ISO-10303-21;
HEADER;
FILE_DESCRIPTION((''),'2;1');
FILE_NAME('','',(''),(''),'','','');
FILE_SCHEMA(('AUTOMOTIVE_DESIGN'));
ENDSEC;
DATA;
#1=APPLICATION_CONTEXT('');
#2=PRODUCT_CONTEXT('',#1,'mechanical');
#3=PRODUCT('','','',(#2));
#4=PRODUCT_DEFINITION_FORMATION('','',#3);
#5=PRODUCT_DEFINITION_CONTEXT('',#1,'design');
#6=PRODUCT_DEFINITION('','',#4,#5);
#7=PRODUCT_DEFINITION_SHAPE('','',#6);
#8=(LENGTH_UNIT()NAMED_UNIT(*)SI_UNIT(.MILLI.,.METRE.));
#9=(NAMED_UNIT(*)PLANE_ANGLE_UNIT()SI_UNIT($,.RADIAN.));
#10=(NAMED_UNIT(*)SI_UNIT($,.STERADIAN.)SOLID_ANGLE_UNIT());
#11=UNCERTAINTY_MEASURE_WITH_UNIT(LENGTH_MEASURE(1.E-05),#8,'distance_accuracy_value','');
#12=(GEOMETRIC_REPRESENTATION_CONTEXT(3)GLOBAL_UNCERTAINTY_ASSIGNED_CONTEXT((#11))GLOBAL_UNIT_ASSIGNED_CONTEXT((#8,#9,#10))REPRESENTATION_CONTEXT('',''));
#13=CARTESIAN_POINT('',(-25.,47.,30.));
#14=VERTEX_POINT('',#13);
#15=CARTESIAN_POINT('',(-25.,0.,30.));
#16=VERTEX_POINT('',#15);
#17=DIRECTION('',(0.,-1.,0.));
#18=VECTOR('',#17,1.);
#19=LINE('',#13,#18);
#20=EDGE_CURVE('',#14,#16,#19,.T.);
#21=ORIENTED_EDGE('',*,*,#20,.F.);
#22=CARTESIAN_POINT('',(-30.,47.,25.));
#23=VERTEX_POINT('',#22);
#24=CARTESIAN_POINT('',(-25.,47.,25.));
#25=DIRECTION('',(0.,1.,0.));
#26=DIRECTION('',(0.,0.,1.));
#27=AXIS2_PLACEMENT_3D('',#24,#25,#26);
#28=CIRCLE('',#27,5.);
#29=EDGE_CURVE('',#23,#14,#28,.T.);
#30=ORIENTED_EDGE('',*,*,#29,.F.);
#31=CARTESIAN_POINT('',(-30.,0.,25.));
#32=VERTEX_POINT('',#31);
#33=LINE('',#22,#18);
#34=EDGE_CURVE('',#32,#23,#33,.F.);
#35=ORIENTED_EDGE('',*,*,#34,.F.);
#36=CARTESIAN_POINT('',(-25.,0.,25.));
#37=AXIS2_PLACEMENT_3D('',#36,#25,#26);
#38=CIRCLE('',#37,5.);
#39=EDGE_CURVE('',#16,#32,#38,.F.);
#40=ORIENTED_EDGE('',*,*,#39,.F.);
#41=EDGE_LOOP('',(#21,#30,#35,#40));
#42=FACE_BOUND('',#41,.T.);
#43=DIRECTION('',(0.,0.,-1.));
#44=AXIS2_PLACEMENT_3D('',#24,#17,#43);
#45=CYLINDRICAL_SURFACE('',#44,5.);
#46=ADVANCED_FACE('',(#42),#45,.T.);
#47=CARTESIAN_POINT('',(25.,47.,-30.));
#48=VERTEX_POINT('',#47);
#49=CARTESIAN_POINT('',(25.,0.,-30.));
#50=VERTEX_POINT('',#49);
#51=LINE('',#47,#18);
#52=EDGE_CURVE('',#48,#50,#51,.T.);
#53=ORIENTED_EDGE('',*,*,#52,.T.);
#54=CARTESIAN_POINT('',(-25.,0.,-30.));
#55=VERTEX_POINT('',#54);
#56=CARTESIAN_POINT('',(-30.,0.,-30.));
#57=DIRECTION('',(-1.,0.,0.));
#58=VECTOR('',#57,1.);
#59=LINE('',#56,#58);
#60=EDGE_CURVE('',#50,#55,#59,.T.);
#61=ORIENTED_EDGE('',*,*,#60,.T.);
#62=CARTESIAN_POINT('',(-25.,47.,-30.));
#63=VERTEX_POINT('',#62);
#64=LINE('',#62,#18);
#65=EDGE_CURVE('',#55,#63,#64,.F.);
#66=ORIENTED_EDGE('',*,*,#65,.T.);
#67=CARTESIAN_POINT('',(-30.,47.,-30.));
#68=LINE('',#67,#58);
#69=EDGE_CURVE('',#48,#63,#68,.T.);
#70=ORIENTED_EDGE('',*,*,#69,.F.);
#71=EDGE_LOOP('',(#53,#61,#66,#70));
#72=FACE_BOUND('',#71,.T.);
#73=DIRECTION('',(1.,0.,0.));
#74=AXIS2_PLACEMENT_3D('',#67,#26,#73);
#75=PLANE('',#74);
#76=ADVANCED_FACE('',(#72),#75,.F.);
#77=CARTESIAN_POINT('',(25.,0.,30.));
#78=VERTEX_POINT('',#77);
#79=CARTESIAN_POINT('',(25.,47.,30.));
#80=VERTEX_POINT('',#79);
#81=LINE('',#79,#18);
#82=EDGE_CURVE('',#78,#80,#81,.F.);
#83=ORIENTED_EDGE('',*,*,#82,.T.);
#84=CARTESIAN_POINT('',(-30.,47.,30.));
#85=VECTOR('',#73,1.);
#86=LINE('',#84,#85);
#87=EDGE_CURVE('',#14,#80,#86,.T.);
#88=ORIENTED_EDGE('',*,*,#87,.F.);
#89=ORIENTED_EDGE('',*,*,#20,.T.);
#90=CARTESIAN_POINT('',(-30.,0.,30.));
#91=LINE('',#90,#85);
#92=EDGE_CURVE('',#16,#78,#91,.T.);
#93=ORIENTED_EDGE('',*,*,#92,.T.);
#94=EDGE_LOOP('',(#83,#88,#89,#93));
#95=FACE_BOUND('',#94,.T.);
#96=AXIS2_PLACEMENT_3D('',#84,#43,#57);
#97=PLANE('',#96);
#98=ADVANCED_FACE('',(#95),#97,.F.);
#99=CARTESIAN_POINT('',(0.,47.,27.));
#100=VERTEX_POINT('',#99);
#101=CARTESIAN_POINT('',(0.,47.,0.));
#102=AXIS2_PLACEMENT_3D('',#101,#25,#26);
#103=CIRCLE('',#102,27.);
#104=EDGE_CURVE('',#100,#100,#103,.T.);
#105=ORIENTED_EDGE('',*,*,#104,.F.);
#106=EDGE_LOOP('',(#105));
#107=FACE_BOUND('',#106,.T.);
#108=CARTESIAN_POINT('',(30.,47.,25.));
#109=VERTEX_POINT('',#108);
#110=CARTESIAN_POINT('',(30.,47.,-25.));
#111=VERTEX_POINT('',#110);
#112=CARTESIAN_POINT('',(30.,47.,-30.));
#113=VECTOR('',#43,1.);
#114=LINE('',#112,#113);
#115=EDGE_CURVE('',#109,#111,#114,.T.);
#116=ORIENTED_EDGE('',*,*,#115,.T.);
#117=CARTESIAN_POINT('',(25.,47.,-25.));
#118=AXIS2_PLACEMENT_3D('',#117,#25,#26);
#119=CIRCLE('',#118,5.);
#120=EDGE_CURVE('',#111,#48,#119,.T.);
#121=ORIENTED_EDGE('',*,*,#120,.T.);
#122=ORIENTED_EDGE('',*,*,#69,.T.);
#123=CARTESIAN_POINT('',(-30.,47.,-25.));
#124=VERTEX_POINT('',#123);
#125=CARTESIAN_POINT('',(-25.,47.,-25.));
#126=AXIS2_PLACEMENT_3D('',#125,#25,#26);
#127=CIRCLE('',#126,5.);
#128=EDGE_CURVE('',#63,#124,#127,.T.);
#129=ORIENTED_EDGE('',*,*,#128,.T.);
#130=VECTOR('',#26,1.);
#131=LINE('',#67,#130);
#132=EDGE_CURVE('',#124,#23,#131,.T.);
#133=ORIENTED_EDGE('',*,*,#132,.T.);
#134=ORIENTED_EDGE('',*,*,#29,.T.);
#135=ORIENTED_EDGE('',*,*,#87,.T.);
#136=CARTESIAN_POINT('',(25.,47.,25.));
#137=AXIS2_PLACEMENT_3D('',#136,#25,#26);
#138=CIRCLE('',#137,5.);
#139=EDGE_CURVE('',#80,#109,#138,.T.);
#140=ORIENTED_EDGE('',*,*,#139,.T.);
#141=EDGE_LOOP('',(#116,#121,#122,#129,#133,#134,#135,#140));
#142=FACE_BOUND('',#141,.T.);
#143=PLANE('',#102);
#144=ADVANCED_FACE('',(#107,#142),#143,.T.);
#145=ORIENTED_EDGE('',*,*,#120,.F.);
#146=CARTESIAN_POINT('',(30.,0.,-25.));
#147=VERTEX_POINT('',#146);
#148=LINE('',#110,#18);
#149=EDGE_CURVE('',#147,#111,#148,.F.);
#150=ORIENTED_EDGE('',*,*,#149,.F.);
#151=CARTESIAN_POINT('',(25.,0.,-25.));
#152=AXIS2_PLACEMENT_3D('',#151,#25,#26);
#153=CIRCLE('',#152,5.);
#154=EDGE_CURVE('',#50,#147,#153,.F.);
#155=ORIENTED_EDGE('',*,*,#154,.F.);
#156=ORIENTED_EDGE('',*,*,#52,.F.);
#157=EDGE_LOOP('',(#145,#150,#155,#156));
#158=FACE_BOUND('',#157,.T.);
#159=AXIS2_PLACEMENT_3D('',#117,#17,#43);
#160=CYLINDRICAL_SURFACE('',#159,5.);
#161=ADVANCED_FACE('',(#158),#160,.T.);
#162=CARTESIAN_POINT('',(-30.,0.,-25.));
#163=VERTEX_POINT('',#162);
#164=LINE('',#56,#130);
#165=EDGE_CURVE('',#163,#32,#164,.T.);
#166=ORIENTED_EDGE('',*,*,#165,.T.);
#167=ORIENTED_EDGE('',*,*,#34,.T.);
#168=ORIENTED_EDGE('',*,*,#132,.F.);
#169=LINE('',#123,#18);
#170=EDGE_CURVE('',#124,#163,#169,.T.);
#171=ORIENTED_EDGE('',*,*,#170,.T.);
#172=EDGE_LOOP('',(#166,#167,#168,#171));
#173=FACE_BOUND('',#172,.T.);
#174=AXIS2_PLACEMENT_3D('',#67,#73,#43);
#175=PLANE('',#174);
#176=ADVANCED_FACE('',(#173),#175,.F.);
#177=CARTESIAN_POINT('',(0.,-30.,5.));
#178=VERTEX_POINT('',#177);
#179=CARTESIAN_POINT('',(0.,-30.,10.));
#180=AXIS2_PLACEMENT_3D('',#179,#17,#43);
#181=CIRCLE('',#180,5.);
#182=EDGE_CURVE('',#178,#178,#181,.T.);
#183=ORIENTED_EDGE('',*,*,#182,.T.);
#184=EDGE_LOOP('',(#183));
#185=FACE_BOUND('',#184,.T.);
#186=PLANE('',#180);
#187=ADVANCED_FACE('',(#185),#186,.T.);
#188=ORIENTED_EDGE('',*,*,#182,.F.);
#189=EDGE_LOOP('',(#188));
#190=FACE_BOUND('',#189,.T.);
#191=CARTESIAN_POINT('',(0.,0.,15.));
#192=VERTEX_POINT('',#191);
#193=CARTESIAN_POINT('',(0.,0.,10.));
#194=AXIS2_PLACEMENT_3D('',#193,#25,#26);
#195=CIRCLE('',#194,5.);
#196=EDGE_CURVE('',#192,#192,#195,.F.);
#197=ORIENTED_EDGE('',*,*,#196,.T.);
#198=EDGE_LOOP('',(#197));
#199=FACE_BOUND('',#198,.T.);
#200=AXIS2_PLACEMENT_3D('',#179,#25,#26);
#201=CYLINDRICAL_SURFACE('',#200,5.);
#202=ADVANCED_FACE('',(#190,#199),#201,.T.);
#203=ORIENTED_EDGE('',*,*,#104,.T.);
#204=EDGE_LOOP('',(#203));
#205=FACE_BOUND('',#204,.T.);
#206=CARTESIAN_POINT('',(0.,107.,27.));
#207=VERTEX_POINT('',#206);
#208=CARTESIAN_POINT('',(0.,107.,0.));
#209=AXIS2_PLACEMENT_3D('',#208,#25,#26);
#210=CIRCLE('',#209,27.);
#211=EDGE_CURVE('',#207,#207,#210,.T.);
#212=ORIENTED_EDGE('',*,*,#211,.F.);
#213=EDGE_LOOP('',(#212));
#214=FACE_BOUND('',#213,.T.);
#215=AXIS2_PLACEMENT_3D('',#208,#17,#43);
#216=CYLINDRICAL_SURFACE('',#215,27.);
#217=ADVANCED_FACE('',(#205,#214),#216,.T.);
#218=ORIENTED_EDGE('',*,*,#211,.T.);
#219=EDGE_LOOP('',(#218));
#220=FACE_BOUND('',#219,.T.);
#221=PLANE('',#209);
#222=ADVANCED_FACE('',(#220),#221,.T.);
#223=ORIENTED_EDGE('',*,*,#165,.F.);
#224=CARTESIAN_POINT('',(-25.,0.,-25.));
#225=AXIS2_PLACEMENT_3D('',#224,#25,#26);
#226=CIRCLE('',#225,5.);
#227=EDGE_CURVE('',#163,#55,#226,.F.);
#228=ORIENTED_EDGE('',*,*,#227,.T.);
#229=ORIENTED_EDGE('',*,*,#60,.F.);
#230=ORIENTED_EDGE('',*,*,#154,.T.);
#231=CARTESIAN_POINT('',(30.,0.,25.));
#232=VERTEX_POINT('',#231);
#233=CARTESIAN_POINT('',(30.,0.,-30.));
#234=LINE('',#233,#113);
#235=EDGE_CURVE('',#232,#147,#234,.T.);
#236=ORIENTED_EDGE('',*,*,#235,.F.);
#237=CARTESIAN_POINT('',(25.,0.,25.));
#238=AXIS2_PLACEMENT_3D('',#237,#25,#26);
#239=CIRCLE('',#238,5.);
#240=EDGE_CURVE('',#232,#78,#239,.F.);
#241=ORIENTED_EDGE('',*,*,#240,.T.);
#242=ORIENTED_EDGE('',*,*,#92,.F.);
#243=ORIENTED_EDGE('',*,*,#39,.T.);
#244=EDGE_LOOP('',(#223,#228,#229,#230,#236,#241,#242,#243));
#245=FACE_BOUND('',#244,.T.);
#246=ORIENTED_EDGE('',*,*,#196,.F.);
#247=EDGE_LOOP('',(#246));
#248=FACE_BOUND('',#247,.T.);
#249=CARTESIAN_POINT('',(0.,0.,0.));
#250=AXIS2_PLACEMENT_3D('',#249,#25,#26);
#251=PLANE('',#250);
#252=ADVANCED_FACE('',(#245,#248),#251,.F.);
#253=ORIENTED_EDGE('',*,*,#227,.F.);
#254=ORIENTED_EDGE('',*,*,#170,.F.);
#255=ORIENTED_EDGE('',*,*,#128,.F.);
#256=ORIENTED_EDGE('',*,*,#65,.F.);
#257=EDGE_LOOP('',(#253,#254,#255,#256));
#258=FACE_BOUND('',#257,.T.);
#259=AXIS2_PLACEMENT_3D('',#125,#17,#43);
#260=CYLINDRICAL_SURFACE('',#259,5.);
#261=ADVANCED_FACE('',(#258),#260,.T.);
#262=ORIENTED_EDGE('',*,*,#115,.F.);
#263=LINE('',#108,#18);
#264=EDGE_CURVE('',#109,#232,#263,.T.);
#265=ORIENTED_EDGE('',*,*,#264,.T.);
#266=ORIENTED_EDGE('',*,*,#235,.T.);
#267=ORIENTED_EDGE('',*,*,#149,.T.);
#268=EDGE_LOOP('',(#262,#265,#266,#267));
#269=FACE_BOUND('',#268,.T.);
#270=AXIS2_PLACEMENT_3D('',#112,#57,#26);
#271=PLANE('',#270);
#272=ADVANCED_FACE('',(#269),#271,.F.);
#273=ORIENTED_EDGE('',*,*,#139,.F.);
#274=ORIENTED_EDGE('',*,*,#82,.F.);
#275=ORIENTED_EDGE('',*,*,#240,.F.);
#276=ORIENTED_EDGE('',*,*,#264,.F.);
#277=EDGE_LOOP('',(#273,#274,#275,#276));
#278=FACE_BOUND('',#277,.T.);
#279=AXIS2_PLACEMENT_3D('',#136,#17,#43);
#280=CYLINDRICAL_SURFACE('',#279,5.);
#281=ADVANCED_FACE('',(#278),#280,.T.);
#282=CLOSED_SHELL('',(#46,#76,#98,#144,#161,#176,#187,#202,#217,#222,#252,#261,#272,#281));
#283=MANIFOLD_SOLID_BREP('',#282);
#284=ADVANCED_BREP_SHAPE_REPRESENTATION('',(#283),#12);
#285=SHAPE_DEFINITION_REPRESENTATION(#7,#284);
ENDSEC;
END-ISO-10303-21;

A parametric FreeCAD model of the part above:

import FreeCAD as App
import Part
import Sketcher
from FreeCAD import Vector
Q = App.Units.Quantity


def edges_at(feature, points):
    """Names of the edges that pass closest to the given points."""
    edges = feature.Shape.Edges
    near = lambda p: min(range(len(edges)), key=lambda i: edges[i].distToShape(Part.Vertex(*p))[0])
    return sorted({f"Edge{near(p) + 1}" for p in points})

doc = App.newDocument("Part")
body = doc.addObject("PartDesign::Body", "Body")

# Sketch on XZ plane
sketch1 = body.newObject("Sketcher::SketchObject", "Sketch")
sketch1.AttachmentSupport = (doc.getObject("XZ_Plane"), [""])
sketch1.MapMode = "FlatFace"
sketch1.addGeometry([
    Part.LineSegment(Vector(-30, -30, 0), Vector(-30, 30, 0)),
    Part.LineSegment(Vector(-30, 30, 0), Vector(30, 30, 0)),
    Part.LineSegment(Vector(30, 30, 0), Vector(30, -30, 0)),
    Part.LineSegment(Vector(30, -30, 0), Vector(-30, -30, 0)),
], False)
sketch1.addConstraint([
    Sketcher.Constraint("Coincident", 0, 2, 1, 1),
    Sketcher.Constraint("Coincident", 1, 2, 2, 1),
    Sketcher.Constraint("Coincident", 2, 2, 3, 1),
    Sketcher.Constraint("Coincident", 3, 2, 0, 1),
    Sketcher.Constraint("Vertical", 0),
    Sketcher.Constraint("Horizontal", 1),
    Sketcher.Constraint("Vertical", 2),
    Sketcher.Constraint("Horizontal", 3),
    Sketcher.Constraint("Symmetric", 0, 2, 2, 2, -1, 1),
    Sketcher.Constraint("Equal", 3, 0),
    Sketcher.Constraint("DistanceX", 1, 1, 1, 2, Q("60 mm")),
])
pad1 = body.newObject("PartDesign::Pad", "Pad")
pad1.Profile = sketch1
pad1.Length = 47
pad1.Reversed = True
doc.recompute()

fillet = body.newObject("PartDesign::Fillet", "Fillet")
fillet.Base = (pad1, edges_at(pad1, [
    (30, 23.5, 30),
    (-30, 23.5, 30),
    (-30, 23.5, -30),
    (30, 23.5, -30),
]))
fillet.Radius = 5

# Sketch on XZ plane
sketch2 = body.newObject("Sketcher::SketchObject", "Sketch001")
sketch2.AttachmentSupport = (doc.getObject("XZ_Plane"), [""])
sketch2.MapMode = "FlatFace"
sketch2.AttachmentOffset = App.Placement(Vector(0, 0, -47), App.Rotation())
sketch2.addGeometry(Part.Circle(Vector(0, 0, 0), Vector(0, 0, 1), 27), False)
sketch2.addConstraint([
    Sketcher.Constraint("Coincident", 0, 3, -1, 1),
    Sketcher.Constraint("Diameter", 0, Q("54 mm")),
])
pad2 = body.newObject("PartDesign::Pad", "Pad001")
pad2.Profile = sketch2
pad2.Length = 60
pad2.Reversed = True

# Sketch on XZ plane
sketch3 = body.newObject("Sketcher::SketchObject", "Sketch002")
sketch3.AttachmentSupport = (doc.getObject("XZ_Plane"), [""])
sketch3.MapMode = "FlatFace"
sketch3.addGeometry(Part.Circle(Vector(0, 10, 0), Vector(0, 0, 1), 5), False)
sketch3.addConstraint([
    Sketcher.Constraint("PointOnObject", 0, 3, -2),
    Sketcher.Constraint("Diameter", 0, Q("10 mm")),
    Sketcher.Constraint("DistanceY", -1, 1, 0, 3, Q("10 mm")),
])
pad3 = body.newObject("PartDesign::Pad", "Pad002")
pad3.Profile = sketch3
pad3.Length = 30

doc.recompute()
